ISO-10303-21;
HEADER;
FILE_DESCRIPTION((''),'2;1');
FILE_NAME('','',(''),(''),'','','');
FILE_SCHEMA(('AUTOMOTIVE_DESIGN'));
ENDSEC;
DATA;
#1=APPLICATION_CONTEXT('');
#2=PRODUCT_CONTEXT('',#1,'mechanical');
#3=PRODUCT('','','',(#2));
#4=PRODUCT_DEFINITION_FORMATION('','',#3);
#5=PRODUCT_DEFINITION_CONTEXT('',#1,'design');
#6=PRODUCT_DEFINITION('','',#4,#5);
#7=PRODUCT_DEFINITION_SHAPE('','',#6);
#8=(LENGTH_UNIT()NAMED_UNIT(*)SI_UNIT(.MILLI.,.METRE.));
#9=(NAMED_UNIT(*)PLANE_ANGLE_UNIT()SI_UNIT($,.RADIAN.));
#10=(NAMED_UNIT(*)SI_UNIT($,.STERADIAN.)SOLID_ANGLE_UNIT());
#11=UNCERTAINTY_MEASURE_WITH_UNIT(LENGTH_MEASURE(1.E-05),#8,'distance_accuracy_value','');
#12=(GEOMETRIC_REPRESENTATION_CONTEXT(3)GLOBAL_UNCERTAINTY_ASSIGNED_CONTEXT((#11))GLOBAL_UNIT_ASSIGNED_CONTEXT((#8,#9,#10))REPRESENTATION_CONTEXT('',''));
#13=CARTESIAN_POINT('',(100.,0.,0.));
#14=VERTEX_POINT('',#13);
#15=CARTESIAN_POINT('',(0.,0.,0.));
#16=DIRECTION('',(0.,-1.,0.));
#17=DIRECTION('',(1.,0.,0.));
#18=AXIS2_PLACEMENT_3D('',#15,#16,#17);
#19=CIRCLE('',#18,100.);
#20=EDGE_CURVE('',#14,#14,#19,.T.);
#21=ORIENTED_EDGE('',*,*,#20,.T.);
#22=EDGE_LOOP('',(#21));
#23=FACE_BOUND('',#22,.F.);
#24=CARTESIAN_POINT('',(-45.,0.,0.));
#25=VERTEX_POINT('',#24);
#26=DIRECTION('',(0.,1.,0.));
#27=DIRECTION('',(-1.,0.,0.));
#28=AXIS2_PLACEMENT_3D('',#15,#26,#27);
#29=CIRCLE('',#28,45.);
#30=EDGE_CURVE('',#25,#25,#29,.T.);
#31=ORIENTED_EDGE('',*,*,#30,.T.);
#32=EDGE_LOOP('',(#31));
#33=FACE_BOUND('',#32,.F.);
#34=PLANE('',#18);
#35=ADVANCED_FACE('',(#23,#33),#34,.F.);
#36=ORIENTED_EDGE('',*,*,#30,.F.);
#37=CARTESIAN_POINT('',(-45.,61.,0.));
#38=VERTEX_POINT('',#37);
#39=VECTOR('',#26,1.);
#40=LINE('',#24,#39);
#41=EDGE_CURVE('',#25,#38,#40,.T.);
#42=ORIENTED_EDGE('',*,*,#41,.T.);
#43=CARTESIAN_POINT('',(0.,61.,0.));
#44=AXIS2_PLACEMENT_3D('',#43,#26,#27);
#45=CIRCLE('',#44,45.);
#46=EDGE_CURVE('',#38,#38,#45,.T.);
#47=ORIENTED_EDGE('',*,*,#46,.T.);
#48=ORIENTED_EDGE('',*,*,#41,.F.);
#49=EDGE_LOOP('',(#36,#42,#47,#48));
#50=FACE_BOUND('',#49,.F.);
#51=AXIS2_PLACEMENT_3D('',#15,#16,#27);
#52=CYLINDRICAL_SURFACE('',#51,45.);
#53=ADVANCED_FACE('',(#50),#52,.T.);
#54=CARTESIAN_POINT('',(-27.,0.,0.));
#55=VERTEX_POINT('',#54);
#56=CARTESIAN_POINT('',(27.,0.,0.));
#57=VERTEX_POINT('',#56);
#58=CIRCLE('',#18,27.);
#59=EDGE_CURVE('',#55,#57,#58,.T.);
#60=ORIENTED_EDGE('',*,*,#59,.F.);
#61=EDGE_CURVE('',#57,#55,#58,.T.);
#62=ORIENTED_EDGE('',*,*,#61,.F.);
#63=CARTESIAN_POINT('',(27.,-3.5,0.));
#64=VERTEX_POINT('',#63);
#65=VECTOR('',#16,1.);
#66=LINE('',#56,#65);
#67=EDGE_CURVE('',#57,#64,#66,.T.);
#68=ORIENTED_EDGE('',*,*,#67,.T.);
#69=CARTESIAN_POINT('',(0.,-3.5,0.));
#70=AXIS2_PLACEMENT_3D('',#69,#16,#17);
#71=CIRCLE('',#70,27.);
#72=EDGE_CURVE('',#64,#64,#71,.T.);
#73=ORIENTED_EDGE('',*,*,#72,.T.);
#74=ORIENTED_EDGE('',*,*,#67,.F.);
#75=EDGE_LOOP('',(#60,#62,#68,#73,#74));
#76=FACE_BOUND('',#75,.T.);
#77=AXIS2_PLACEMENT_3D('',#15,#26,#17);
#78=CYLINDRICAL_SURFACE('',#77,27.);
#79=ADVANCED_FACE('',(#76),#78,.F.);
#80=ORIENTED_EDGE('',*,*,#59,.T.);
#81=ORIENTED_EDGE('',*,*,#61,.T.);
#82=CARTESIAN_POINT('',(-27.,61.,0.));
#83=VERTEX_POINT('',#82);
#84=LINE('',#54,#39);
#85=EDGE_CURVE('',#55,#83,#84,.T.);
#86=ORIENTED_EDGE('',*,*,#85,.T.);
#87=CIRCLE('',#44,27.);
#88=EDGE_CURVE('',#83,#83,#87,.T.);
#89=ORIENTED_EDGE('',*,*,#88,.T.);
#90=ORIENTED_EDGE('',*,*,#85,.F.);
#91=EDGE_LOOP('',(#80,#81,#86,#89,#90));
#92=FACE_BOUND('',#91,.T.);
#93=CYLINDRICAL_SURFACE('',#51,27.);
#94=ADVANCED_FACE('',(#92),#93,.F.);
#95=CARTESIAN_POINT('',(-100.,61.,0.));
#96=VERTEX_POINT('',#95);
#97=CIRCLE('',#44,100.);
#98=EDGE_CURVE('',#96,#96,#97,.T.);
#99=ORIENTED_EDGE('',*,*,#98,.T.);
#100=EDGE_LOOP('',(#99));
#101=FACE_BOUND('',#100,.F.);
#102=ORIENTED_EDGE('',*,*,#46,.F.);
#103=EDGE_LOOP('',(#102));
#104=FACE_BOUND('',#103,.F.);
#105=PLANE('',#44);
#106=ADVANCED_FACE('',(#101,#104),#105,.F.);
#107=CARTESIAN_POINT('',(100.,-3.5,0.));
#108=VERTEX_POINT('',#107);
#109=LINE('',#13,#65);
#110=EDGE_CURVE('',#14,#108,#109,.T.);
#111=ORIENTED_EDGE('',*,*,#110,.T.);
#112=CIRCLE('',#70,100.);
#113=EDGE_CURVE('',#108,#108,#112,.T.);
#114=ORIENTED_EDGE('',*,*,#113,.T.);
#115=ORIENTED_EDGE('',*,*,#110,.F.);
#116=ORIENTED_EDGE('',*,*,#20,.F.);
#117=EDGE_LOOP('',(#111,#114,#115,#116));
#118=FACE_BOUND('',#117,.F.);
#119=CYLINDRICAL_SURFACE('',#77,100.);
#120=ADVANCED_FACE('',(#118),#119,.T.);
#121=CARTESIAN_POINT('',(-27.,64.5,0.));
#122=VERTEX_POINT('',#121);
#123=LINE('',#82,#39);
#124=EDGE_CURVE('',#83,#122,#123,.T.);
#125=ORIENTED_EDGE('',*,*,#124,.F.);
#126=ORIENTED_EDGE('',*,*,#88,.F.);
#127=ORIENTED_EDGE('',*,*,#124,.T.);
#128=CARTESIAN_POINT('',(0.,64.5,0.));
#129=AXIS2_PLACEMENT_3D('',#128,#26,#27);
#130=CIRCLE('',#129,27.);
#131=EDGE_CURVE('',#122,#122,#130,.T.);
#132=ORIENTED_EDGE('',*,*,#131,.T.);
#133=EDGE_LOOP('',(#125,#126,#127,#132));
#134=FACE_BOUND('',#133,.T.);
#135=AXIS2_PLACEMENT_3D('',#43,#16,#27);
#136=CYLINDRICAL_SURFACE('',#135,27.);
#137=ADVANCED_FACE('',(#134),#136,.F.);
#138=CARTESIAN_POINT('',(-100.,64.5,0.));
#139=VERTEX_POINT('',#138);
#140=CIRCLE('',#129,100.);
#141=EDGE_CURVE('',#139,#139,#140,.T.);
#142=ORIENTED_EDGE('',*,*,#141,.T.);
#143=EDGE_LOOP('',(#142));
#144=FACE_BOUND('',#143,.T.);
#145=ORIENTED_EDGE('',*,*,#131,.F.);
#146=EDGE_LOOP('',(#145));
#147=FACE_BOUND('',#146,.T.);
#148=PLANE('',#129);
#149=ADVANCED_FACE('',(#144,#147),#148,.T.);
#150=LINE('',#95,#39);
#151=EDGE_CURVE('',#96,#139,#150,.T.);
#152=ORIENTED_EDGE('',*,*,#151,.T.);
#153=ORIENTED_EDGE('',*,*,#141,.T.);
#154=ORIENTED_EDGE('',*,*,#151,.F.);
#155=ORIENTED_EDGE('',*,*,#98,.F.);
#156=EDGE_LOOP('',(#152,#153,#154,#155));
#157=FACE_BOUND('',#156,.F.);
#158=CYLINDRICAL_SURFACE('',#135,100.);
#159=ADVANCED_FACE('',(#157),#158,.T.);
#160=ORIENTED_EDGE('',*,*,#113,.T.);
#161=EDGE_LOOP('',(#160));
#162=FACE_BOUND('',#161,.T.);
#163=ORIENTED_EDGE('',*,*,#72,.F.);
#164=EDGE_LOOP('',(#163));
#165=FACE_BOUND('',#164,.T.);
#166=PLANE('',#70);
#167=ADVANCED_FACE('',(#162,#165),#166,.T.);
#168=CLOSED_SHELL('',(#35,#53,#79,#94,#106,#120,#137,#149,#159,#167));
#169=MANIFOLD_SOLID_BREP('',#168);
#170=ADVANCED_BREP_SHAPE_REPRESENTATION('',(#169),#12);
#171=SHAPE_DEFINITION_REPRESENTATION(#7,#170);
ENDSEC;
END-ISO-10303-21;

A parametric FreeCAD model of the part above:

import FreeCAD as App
import Part
import Sketcher
from FreeCAD import Vector

doc = App.newDocument("Part")
params = doc.addObject("Spreadsheet::Sheet", "Params")
for row, (alias, value) in enumerate([
    ("sketch1_diameter", "200 mm"),
    ("sketch1_diameter2", "54 mm"),
    ("pad1_length", "3.5 mm"),
    ("sketch2_diameter", "90 mm"),
    ("sketch2_diameter2", "54 mm"),
    ("pad2_length", "61 mm"),
    ("sketch3_diameter", "200 mm"),
    ("sketch3_diameter2", "54 mm"),
    ("pad3_length", "3.5 mm"),
], start=1):
    params.set(f"A{row}", alias)
    params.set(f"B{row}", "=" + value)
    params.setAlias(f"B{row}", alias)

body = doc.addObject("PartDesign::Body", "Body")

sketch1 = doc.addObject("Sketcher::SketchObject", "Sketch")
body.addObject(sketch1)
sketch1.AttachmentSupport = (doc.XZ_Plane, [""])
sketch1.MapMode = "FlatFace"
sketch1.addGeometry([
    Part.Circle(Vector(0, 0, 0), Vector(0, 0, 1), 100),
    Part.Circle(Vector(0, 0, 0), Vector(0, 0, 1), 27),
], False)
sketch1.addConstraint([
    Sketcher.Constraint("Coincident", 0, 3, -1, 1),
    Sketcher.Constraint("Coincident", 1, 3, -1, 1),
    Sketcher.Constraint("Diameter", 0, 200.0),
    Sketcher.Constraint("Diameter", 1, 54.0),
])
sketch1.setExpression("Constraints[2]", "Params.sketch1_diameter")
sketch1.setExpression("Constraints[3]", "Params.sketch1_diameter2")
pad1 = doc.addObject("PartDesign::Pad", "Pad")
body.addObject(pad1)
pad1.Profile = sketch1
pad1.setExpression("Length", "Params.pad1_length")

sketch2 = doc.addObject("Sketcher::SketchObject", "Sketch001")
body.addObject(sketch2)
sketch2.AttachmentSupport = (doc.XZ_Plane, [""])
sketch2.MapMode = "FlatFace"
sketch2.addGeometry([
    Part.Circle(Vector(0, 0, 0), Vector(0, 0, 1), 45),
    Part.Circle(Vector(0, 0, 0), Vector(0, 0, 1), 27),
], False)
sketch2.addConstraint([
    Sketcher.Constraint("Coincident", 0, 3, -1, 1),
    Sketcher.Constraint("Coincident", 1, 3, -1, 1),
    Sketcher.Constraint("Diameter", 0, 90.0),
    Sketcher.Constraint("Diameter", 1, 54.0),
])
sketch2.setExpression("Constraints[2]", "Params.sketch2_diameter")
sketch2.setExpression("Constraints[3]", "Params.sketch2_diameter2")
pad2 = doc.addObject("PartDesign::Pad", "Pad001")
body.addObject(pad2)
pad2.Profile = sketch2
pad2.setExpression("Length", "Params.pad2_length")
pad2.Reversed = True

sketch3 = doc.addObject("Sketcher::SketchObject", "Sketch002")
body.addObject(sketch3)
sketch3.AttachmentSupport = (doc.XZ_Plane, [""])
sketch3.MapMode = "FlatFace"
sketch3.AttachmentOffset = App.Placement(Vector(0, 0, -61), App.Rotation())
sketch3.addGeometry([
    Part.Circle(Vector(0, 0, 0), Vector(0, 0, 1), 100),
    Part.Circle(Vector(0, 0, 0), Vector(0, 0, 1), 27),
], False)
sketch3.addConstraint([
    Sketcher.Constraint("Coincident", 0, 3, -1, 1),
    Sketcher.Constraint("Coincident", 1, 3, -1, 1),
    Sketcher.Constraint("Diameter", 0, 200.0),
    Sketcher.Constraint("Diameter", 1, 54.0),
])
sketch3.setExpression("Constraints[2]", "Params.sketch3_diameter")
sketch3.setExpression("Constraints[3]", "Params.sketch3_diameter2")
pad3 = doc.addObject("PartDesign::Pad", "Pad002")
body.addObject(pad3)
pad3.Profile = sketch3
pad3.setExpression("Length", "Params.pad3_length")
pad3.Reversed = True

doc.recompute()
